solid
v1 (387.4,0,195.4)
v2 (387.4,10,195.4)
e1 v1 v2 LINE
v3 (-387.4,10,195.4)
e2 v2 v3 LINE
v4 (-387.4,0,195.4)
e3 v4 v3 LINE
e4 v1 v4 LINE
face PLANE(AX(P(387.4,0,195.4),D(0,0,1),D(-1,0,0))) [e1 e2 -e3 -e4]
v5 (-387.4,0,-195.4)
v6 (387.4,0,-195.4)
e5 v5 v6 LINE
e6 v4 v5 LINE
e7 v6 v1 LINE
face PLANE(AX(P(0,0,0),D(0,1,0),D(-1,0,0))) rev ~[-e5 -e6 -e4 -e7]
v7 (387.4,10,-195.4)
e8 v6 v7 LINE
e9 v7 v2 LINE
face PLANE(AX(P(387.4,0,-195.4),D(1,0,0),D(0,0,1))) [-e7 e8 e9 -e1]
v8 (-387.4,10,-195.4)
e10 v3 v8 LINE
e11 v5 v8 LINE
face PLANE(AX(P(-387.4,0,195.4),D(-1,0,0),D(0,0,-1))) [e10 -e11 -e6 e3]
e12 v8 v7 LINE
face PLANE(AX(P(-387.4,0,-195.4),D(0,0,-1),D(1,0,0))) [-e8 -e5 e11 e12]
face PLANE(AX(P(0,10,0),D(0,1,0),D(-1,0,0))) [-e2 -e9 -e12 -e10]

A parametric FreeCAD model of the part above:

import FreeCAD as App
import Part
import Sketcher

V = App.Vector
Q = App.Units.Quantity

doc = App.newDocument("Part")
body = doc.addObject("PartDesign::Body", "Body")

# Sketch on XZ plane
sketch1 = body.newObject("Sketcher::SketchObject", "Sketch")
sketch1.AttachmentSupport = (doc.getObject("XZ_Plane"), [""])
sketch1.MapMode = "FlatFace"
sketch1.addGeometry([
    Part.LineSegment(V(387, -195, 0), V(-387, -195, 0)),
    Part.LineSegment(V(-387, -195, 0), V(-387, 195, 0)),
    Part.LineSegment(V(-387, 195, 0), V(387, 195, 0)),
    Part.LineSegment(V(387, 195, 0), V(387, -195, 0)),
], False)
sketch1.addConstraint([
    Sketcher.Constraint("Coincident", 0, 2, 1, 1),
    Sketcher.Constraint("Coincident", 1, 2, 2, 1),
    Sketcher.Constraint("Coincident", 2, 2, 3, 1),
    Sketcher.Constraint("Coincident", 3, 2, 0, 1),
    Sketcher.Constraint("Horizontal", 0),
    Sketcher.Constraint("Vertical", 1),
    Sketcher.Constraint("Horizontal", 2),
    Sketcher.Constraint("Vertical", 3),
    Sketcher.Constraint("Symmetric", 0, 2, 2, 2, -1, 1),
    Sketcher.Constraint("DistanceX", 0, 2, 0, 1, Q("774.8 mm")),
    Sketcher.Constraint("DistanceY", 1, 1, 1, 2, Q("390.8 mm")),
])
pad1 = body.newObject("PartDesign::Pad", "Pad")
pad1.Profile = sketch1
pad1.Length = 10
pad1.Reversed = True

doc.recompute()
